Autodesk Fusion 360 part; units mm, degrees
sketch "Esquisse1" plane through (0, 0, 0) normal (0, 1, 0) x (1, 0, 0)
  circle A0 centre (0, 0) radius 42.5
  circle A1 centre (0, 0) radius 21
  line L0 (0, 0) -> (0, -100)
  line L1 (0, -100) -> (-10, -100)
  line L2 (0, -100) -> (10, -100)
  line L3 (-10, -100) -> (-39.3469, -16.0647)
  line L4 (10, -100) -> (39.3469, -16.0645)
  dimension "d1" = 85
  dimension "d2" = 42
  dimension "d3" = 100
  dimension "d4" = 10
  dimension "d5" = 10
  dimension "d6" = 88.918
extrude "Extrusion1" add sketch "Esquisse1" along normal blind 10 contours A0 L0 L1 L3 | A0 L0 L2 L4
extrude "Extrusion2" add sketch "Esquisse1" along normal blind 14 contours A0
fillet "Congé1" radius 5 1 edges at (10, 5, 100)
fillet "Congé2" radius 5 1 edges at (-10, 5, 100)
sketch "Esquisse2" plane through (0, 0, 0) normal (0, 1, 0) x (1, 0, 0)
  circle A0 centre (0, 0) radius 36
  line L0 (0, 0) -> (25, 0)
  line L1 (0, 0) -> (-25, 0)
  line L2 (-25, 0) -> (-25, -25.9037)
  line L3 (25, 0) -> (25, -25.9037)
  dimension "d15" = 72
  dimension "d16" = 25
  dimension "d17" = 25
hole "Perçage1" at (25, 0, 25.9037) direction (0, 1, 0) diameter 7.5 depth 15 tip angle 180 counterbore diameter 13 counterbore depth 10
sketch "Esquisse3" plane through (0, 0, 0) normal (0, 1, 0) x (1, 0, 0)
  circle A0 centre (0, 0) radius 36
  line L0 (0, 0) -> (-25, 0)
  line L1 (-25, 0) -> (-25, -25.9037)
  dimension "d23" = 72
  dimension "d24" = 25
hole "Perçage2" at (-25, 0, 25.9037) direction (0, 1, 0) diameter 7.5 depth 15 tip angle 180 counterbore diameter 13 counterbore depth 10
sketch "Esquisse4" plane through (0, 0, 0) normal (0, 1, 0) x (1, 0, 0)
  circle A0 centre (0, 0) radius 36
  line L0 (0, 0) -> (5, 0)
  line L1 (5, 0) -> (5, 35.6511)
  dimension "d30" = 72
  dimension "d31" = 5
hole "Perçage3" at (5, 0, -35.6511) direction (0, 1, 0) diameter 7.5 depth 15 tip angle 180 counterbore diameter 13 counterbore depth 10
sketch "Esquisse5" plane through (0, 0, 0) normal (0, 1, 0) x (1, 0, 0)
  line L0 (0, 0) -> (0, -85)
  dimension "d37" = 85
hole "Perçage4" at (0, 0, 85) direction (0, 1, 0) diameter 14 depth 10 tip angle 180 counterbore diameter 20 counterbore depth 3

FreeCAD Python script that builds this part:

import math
import FreeCAD as App
import Part
import Sketcher

V = App.Vector
Q = App.Units.Quantity


def edges_at(feature, points):
    """Names of the edges that pass closest to the given points."""
    edges = feature.Shape.Edges
    near = lambda p: min(range(len(edges)), key=lambda i: edges[i].distToShape(Part.Vertex(*p))[0])
    return sorted({f"Edge{near(p) + 1}" for p in points})

doc = App.newDocument("Part")
params = doc.addObject("Spreadsheet::Sheet", "Params")
for row, (alias, value) in enumerate([
    ("sketch1_radius", "42.5 mm"),
    ("pad1_length", "10 mm"),
    ("sketch2_diameter", "85 mm"),
    ("sketch2_diameter2", "42 mm"),
    ("pad2_length", "14 mm"),
    ("fillet_radius", "5 mm"),
    ("fillet2_radius", "5 mm"),
    ("sketch3_diameter", "7.5 mm"),
    ("hole_diameter", "7.5 mm"),
    ("hole_depth", "15 mm"),
    ("hole_cbore_diameter", "13 mm"),
    ("hole_cbore_depth", "10 mm"),
    ("sketch4_diameter", "7.5 mm"),
    ("hole2_diameter", "7.5 mm"),
    ("hole2_depth", "15 mm"),
    ("hole2_cbore_diameter", "13 mm"),
    ("hole2_cbore_depth", "10 mm"),
    ("sketch5_diameter", "7.5 mm"),
    ("hole3_diameter", "7.5 mm"),
    ("hole3_depth", "15 mm"),
    ("hole3_cbore_diameter", "13 mm"),
    ("hole3_cbore_depth", "10 mm"),
    ("sketch6_diameter", "14 mm"),
    ("hole4_diameter", "14 mm"),
    ("hole4_depth", "10 mm"),
    ("hole4_cbore_diameter", "20 mm"),
    ("hole4_cbore_depth", "3 mm"),
], start=1):
    params.set(f"A{row}", alias)
    params.set(f"B{row}", "=" + value)
    params.setAlias(f"B{row}", alias)

body = doc.addObject("PartDesign::Body", "Body")

# Sketch on XZ plane
sketch1 = body.newObject("Sketcher::SketchObject", "Sketch")
sketch1.AttachmentSupport = (doc.getObject("XZ_Plane"), [""])
sketch1.MapMode = "FlatFace"
sketch1.addGeometry(Part.LineSegment(V(-39, 16, 0), V(-10, 100, 0)), False)
sketch1.addGeometry(Part.LineSegment(V(-10, 100, 0), V(10, 100, 0)), False)
sketch1.addGeometry(Part.LineSegment(V(10, 100, 0), V(39, 16, 0)), False)
sketch1.addGeometry(Part.ArcOfCircle(Part.Circle(V(0, 0, 0), V(0, 0, 1), 42), math.radians(22), math.radians(158)), False)
sketch1.addConstraint(Sketcher.Constraint("Coincident", 0, 2, 1, 1))
sketch1.addConstraint(Sketcher.Constraint("Coincident", 1, 2, 2, 1))
sketch1.addConstraint(Sketcher.Constraint("Coincident", 2, 2, 3, 1))
sketch1.addConstraint(Sketcher.Constraint("Coincident", 3, 2, 0, 1))
sketch1.addConstraint(Sketcher.Constraint("Horizontal", 1))
sketch1.addConstraint(Sketcher.Constraint("Coincident", 3, 3, -1, 1))
sketch1.addConstraint(Sketcher.Constraint("Horizontal", 2, 2, 3, 2))
sketch1.addConstraint(Sketcher.Constraint("Equal", 0, 2))
sketch1.addConstraint(Sketcher.Constraint("Radius", 3, Q("42.5 mm")))
sketch1.addConstraint(Sketcher.Constraint("DistanceX", 0, 2, -1, 1, Q("10 mm")))
sketch1.addConstraint(Sketcher.Constraint("DistanceY", -1, 1, 0, 2, Q("100 mm")))
sketch1.addConstraint(Sketcher.Constraint("Distance", 2, Q("88.918 mm")))
sketch1.setExpression("Constraints[8]", "Params.sketch1_radius")
pad1 = body.newObject("PartDesign::Pad", "Pad")
pad1.Profile = sketch1
pad1.setExpression("Length", "Params.pad1_length")
pad1.Reversed = True

# Sketch on XZ plane
sketch2 = body.newObject("Sketcher::SketchObject", "Sketch001")
sketch2.AttachmentSupport = (doc.getObject("XZ_Plane"), [""])
sketch2.MapMode = "FlatFace"
sketch2.addGeometry(Part.Circle(V(0, 0, 0), V(0, 0, 1), 42), False)
sketch2.addGeometry(Part.Circle(V(0, 0, 0), V(0, 0, 1), 21), False)
sketch2.addConstraint(Sketcher.Constraint("Coincident", 0, 3, -1, 1))
sketch2.addConstraint(Sketcher.Constraint("Coincident", 1, 3, -1, 1))
sketch2.addConstraint(Sketcher.Constraint("Diameter", 0, Q("85 mm")))
sketch2.addConstraint(Sketcher.Constraint("Diameter", 1, Q("42 mm")))
sketch2.setExpression("Constraints[2]", "Params.sketch2_diameter")
sketch2.setExpression("Constraints[3]", "Params.sketch2_diameter2")
pad2 = body.newObject("PartDesign::Pad", "Pad001")
pad2.Profile = sketch2
pad2.setExpression("Length", "Params.pad2_length")
pad2.Reversed = True
doc.recompute()

fillet = body.newObject("PartDesign::Fillet", "Fillet")
fillet.Base = (pad2, edges_at(pad2, [(10, 5, 100)]))
fillet.setExpression("Radius", "Params.fillet_radius")
doc.recompute()

fillet2 = body.newObject("PartDesign::Fillet", "Fillet001")
fillet2.Base = (fillet, edges_at(fillet, [(-10, 5, 100)]))
fillet2.setExpression("Radius", "Params.fillet2_radius")

# Sketch on XZ plane
sketch3 = body.newObject("Sketcher::SketchObject", "Sketch002")
sketch3.AttachmentSupport = (doc.getObject("XZ_Plane"), [""])
sketch3.MapMode = "FlatFace"
sketch3.addGeometry(Part.Circle(V(25, 25.9, 0), V(0, 0, 1), 3.8), False)
sketch3.addConstraint(Sketcher.Constraint("Diameter", 0, Q("7.5 mm")))
sketch3.addConstraint(Sketcher.Constraint("DistanceX", -1, 1, 0, 3, Q("25 mm")))
sketch3.addConstraint(Sketcher.Constraint("DistanceY", -1, 1, 0, 3, Q("25.9037 mm")))
sketch3.setExpression("Constraints[0]", "Params.sketch3_diameter")
doc.recompute()
hole = body.newObject("PartDesign::Hole", "Hole")
hole.Profile = sketch3
hole.ThreadType = "None"
hole.setExpression("Diameter", "Params.hole_diameter")
hole.DepthType = "Dimension"
hole.setExpression("Depth", "Params.hole_depth")
hole.DrillPoint = "Flat"
hole.HoleCutType = "Counterbore"
hole.setExpression("HoleCutDiameter", "Params.hole_cbore_diameter")
hole.setExpression("HoleCutDepth", "Params.hole_cbore_depth")

# Sketch on XZ plane
sketch4 = body.newObject("Sketcher::SketchObject", "Sketch003")
sketch4.AttachmentSupport = (doc.getObject("XZ_Plane"), [""])
sketch4.MapMode = "FlatFace"
sketch4.addGeometry(Part.Circle(V(-25, 25.9, 0), V(0, 0, 1), 3.8), False)
sketch4.addConstraint(Sketcher.Constraint("Diameter", 0, Q("7.5 mm")))
sketch4.addConstraint(Sketcher.Constraint("DistanceX", 0, 3, -1, 1, Q("25 mm")))
sketch4.addConstraint(Sketcher.Constraint("DistanceY", -1, 1, 0, 3, Q("25.9037 mm")))
sketch4.setExpression("Constraints[0]", "Params.sketch4_diameter")
doc.recompute()
hole2 = body.newObject("PartDesign::Hole", "Hole001")
hole2.Profile = sketch4
hole2.ThreadType = "None"
hole2.setExpression("Diameter", "Params.hole2_diameter")
hole2.DepthType = "Dimension"
hole2.setExpression("Depth", "Params.hole2_depth")
hole2.DrillPoint = "Flat"
hole2.HoleCutType = "Counterbore"
hole2.setExpression("HoleCutDiameter", "Params.hole2_cbore_diameter")
hole2.setExpression("HoleCutDepth", "Params.hole2_cbore_depth")

# Sketch on XZ plane
sketch5 = body.newObject("Sketcher::SketchObject", "Sketch004")
sketch5.AttachmentSupport = (doc.getObject("XZ_Plane"), [""])
sketch5.MapMode = "FlatFace"
sketch5.addGeometry(Part.Circle(V(5, -35.7, 0), V(0, 0, 1), 3.8), False)
sketch5.addConstraint(Sketcher.Constraint("Diameter", 0, Q("7.5 mm")))
sketch5.addConstraint(Sketcher.Constraint("DistanceX", -1, 1, 0, 3, Q("5 mm")))
sketch5.addConstraint(Sketcher.Constraint("DistanceY", 0, 3, -1, 1, Q("35.651 mm")))
sketch5.setExpression("Constraints[0]", "Params.sketch5_diameter")
doc.recompute()
hole3 = body.newObject("PartDesign::Hole", "Hole002")
hole3.Profile = sketch5
hole3.ThreadType = "None"
hole3.setExpression("Diameter", "Params.hole3_diameter")
hole3.DepthType = "Dimension"
hole3.setExpression("Depth", "Params.hole3_depth")
hole3.DrillPoint = "Flat"
hole3.HoleCutType = "Counterbore"
hole3.setExpression("HoleCutDiameter", "Params.hole3_cbore_diameter")
hole3.setExpression("HoleCutDepth", "Params.hole3_cbore_depth")

# Sketch on XZ plane
sketch6 = body.newObject("Sketcher::SketchObject", "Sketch005")
sketch6.AttachmentSupport = (doc.getObject("XZ_Plane"), [""])
sketch6.MapMode = "FlatFace"
sketch6.addGeometry(Part.Circle(V(0, 85, 0), V(0, 0, 1), 7), False)
sketch6.addConstraint(Sketcher.Constraint("PointOnObject", 0, 3, -2))
sketch6.addConstraint(Sketcher.Constraint("Diameter", 0, Q("14 mm")))
sketch6.addConstraint(Sketcher.Constraint("DistanceY", -1, 1, 0, 3, Q("85 mm")))
sketch6.setExpression("Constraints[1]", "Params.sketch6_diameter")
doc.recompute()
hole4 = body.newObject("PartDesign::Hole", "Hole003")
hole4.Profile = sketch6
hole4.ThreadType = "None"
hole4.setExpression("Diameter", "Params.hole4_diameter")
hole4.DepthType = "Dimension"
hole4.setExpression("Depth", "Params.hole4_depth")
hole4.DrillPoint = "Flat"
hole4.HoleCutType = "Counterbore"
hole4.setExpression("HoleCutDiameter", "Params.hole4_cbore_diameter")
hole4.setExpression("HoleCutDepth", "Params.hole4_cbore_depth")

doc.recompute()
